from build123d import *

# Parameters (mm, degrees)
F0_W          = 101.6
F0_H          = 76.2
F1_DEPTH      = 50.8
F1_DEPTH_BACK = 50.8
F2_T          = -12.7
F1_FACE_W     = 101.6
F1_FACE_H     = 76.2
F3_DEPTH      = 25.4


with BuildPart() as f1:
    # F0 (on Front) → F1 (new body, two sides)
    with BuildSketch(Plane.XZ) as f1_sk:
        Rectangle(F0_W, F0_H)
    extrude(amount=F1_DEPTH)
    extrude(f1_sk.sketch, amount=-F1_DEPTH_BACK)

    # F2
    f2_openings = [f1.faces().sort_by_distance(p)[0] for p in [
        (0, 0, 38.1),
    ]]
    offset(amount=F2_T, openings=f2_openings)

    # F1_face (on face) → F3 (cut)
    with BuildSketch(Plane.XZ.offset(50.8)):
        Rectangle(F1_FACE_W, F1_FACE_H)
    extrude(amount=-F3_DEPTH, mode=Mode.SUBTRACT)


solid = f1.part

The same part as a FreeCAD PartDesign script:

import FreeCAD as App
import Part
import Sketcher

V = App.Vector
Q = App.Units.Quantity


def faces_at(feature, points):
    """Names of the faces that lie closest to the given points."""
    faces = feature.Shape.Faces
    near = lambda p: min(range(len(faces)), key=lambda i: faces[i].distToShape(Part.Vertex(*p))[0])
    return sorted({f"Face{near(p) + 1}" for p in points})

doc = App.newDocument("Part")
body = doc.addObject("PartDesign::Body", "Body")

sketch1 = body.newObject("Sketcher::SketchObject", "Sketch")
sketch1.AttachmentSupport = (doc.getObject("XZ_Plane"), [""])
sketch1.MapMode = "FlatFace"
sketch1.addGeometry([
    Part.LineSegment(V(-50.8, 38.1, 0), V(-50.8, -38.1, 0)),
    Part.LineSegment(V(-50.8, -38.1, 0), V(50.8, -38.1, 0)),
    Part.LineSegment(V(50.8, -38.1, 0), V(50.8, 38.1, 0)),
    Part.LineSegment(V(50.8, 38.1, 0), V(-50.8, 38.1, 0)),
], False)
sketch1.addConstraint([
    Sketcher.Constraint("Coincident", 0, 2, 1, 1),
    Sketcher.Constraint("Coincident", 1, 2, 2, 1),
    Sketcher.Constraint("Coincident", 2, 2, 3, 1),
    Sketcher.Constraint("Coincident", 3, 2, 0, 1),
    Sketcher.Constraint("Vertical", 0),
    Sketcher.Constraint("Horizontal", 1),
    Sketcher.Constraint("Vertical", 2),
    Sketcher.Constraint("Horizontal", 3),
    Sketcher.Constraint("Symmetric", 0, 2, 2, 2, -1, 1),
    Sketcher.Constraint("DistanceX", 1, 1, 1, 2, Q("4 in")),
    Sketcher.Constraint("DistanceY", 0, 2, 0, 1, Q("3 in")),
])
pad1 = body.newObject("PartDesign::Pad", "Pad")
pad1.Profile = sketch1
pad1.Type = "TwoLengths"
pad1.Length = Q("2 in")
pad1.Length2 = Q("2 in")
doc.recompute()

thickness = body.newObject("PartDesign::Thickness", "Thickness")
thickness.Base = (pad1, faces_at(pad1, [(0, 0, 38.1)]))
thickness.Value = Q("0.5 in")
thickness.Reversed = True
thickness.Join = "Arc"

sketch2 = body.newObject("Sketcher::SketchObject", "Sketch001")
sketch2.AttachmentSupport = (doc.getObject("XZ_Plane"), [""])
sketch2.MapMode = "FlatFace"
sketch2.AttachmentOffset = App.Placement(V(0, 0, 2 * 25.4), App.Rotation())
sketch2.addGeometry([
    Part.LineSegment(V(-50.8, 38.1, 0), V(-50.8, -38.1, 0)),
    Part.LineSegment(V(-50.8, -38.1, 0), V(50.8, -38.1, 0)),
    Part.LineSegment(V(50.8, -38.1, 0), V(50.8, 38.1, 0)),
    Part.LineSegment(V(50.8, 38.1, 0), V(-50.8, 38.1, 0)),
], False)
sketch2.addConstraint([
    Sketcher.Constraint("Coincident", 0, 2, 1, 1),
    Sketcher.Constraint("Coincident", 1, 2, 2, 1),
    Sketcher.Constraint("Coincident", 2, 2, 3, 1),
    Sketcher.Constraint("Coincident", 3, 2, 0, 1),
    Sketcher.Constraint("Vertical", 0),
    Sketcher.Constraint("Horizontal", 1),
    Sketcher.Constraint("Vertical", 2),
    Sketcher.Constraint("Horizontal", 3),
    Sketcher.Constraint("Symmetric", 0, 2, 2, 2, -1, 1),
    Sketcher.Constraint("DistanceX", 1, 1, 1, 2, Q("4 in")),
    Sketcher.Constraint("DistanceY", 0, 2, 0, 1, Q("3 in")),
])
pocket1 = body.newObject("PartDesign::Pocket", "Pocket")
pocket1.Profile = sketch2
pocket1.Length = Q("1 in")

doc.recompute()
